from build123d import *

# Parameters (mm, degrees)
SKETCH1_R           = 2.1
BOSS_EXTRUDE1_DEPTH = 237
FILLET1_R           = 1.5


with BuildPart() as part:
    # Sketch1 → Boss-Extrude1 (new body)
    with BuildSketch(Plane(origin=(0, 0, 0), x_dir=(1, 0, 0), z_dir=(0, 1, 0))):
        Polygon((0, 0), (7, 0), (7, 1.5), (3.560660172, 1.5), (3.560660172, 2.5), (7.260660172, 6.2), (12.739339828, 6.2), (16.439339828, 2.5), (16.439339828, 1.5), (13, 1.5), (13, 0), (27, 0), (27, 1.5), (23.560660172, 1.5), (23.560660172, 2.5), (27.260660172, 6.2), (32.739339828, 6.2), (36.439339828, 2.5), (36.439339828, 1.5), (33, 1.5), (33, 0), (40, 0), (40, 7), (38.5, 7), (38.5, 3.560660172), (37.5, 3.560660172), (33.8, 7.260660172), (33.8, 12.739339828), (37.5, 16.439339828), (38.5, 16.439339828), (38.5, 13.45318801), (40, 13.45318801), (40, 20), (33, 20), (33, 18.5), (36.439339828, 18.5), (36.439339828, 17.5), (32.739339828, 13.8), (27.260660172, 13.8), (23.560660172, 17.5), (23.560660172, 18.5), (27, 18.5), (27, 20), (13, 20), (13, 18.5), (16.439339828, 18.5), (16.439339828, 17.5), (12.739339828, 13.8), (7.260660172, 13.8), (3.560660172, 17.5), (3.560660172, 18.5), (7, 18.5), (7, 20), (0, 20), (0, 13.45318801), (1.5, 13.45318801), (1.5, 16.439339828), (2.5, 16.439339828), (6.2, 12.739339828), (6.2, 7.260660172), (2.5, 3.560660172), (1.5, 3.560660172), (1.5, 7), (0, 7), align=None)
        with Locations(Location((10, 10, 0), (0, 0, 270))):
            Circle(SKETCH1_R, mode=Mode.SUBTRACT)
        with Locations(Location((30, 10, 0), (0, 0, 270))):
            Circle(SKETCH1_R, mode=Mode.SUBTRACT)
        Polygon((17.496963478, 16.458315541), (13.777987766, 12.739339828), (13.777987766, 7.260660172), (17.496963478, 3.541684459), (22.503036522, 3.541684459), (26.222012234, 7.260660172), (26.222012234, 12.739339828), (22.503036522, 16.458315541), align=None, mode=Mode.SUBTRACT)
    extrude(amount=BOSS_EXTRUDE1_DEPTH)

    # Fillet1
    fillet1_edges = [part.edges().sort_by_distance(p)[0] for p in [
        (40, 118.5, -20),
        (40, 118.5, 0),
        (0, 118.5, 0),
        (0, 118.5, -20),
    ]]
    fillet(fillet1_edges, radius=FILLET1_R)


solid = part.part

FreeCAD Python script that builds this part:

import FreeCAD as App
import Part
import Sketcher

V = App.Vector


def edges_at(feature, points):
    """Names of the edges that pass closest to the given points."""
    edges = feature.Shape.Edges
    near = lambda p: min(range(len(edges)), key=lambda i: edges[i].distToShape(Part.Vertex(*p))[0])
    return sorted({f"Edge{near(p) + 1}" for p in points})


def add_polygon(sketch, points):
    """Adds a closed chain of lines whose ends are joined by coincident constraints."""
    first, n = sketch.GeometryCount, len(points)
    for a, b in zip(points, points[1:] + points[:1]):
        sketch.addGeometry(Part.LineSegment(App.Vector(*a, 0), App.Vector(*b, 0)), False)
    for i in range(n):
        sketch.addConstraint(Sketcher.Constraint("Coincident", first + i, 2, first + (i + 1) % n, 1))

doc = App.newDocument("Part")
body = doc.addObject("PartDesign::Body", "Body")

# Sketch on XZ plane
sketch1 = doc.addObject("Sketcher::SketchObject", "Sketch")
body.addObject(sketch1)
sketch1.AttachmentSupport = (doc.XZ_Plane, [""])
sketch1.MapMode = "FlatFace"
add_polygon(sketch1, [(0, 0), (7, 0), (7, -1.5), (3.56066, -1.5), (3.56066, -2.5), (7.26066, -6.2), (12.73934, -6.2), (16.43934, -2.5), (16.43934, -1.5), (13, -1.5), (13, 0), (27, 0), (27, -1.5), (23.56066, -1.5), (23.56066, -2.5), (27.26066, -6.2), (32.73934, -6.2), (36.43934, -2.5), (36.43934, -1.5), (33, -1.5), (33, 0), (40, 0), (40, -7), (38.5, -7), (38.5, -3.56066), (37.5, -3.56066), (33.8, -7.26066), (33.8, -12.73934), (37.5, -16.43934), (38.5, -16.43934), (38.5, -13.453188), (40, -13.453188), (40, -20), (33, -20), (33, -18.5), (36.43934, -18.5), (36.43934, -17.5), (32.73934, -13.8), (27.26066, -13.8), (23.56066, -17.5), (23.56066, -18.5), (27, -18.5), (27, -20), (13, -20), (13, -18.5), (16.43934, -18.5), (16.43934, -17.5), (12.73934, -13.8), (7.26066, -13.8), (3.56066, -17.5), (3.56066, -18.5), (7, -18.5), (7, -20), (0, -20), (0, -13.453188), (1.5, -13.453188), (1.5, -16.43934), (2.5, -16.43934), (6.2, -12.73934), (6.2, -7.26066), (2.5, -3.56066), (1.5, -3.56066), (1.5, -7), (0, -7)])  # lines 0-63
sketch1.addGeometry(Part.Circle(V(10, -10, 0), V(0, 0, 1), 2.1), False)  # 64
add_polygon(sketch1, [(13.777988, -12.73934), (17.496963, -16.458316), (22.503037, -16.458316), (26.222012, -12.73934), (26.222012, -7.26066), (22.503037, -3.541684), (17.496963, -3.541684), (13.777988, -7.26066)])  # lines 65-72
sketch1.addGeometry(Part.Circle(V(30, -10, 0), V(0, 0, 1), 2.1), False)  # 73
sketch1.addConstraint([
    Sketcher.Constraint("Horizontal", 0),
    Sketcher.Constraint("Vertical", 1),
    Sketcher.Constraint("Horizontal", 2),
    Sketcher.Constraint("Vertical", 3),
    Sketcher.Constraint("Horizontal", 5),
    Sketcher.Constraint("Vertical", 7),
    Sketcher.Constraint("Horizontal", 8),
    Sketcher.Constraint("Vertical", 9),
    Sketcher.Constraint("Horizontal", 10),
    Sketcher.Constraint("Vertical", 11),
    Sketcher.Constraint("Horizontal", 12),
    Sketcher.Constraint("Vertical", 13),
    Sketcher.Constraint("Horizontal", 15),
    Sketcher.Constraint("Vertical", 17),
    Sketcher.Constraint("Horizontal", 18),
    Sketcher.Constraint("Vertical", 19),
    Sketcher.Constraint("Horizontal", 20),
    Sketcher.Constraint("Vertical", 21),
    Sketcher.Constraint("Horizontal", 22),
    Sketcher.Constraint("Vertical", 23),
    Sketcher.Constraint("Horizontal", 24),
    Sketcher.Constraint("Vertical", 26),
    Sketcher.Constraint("Horizontal", 28),
    Sketcher.Constraint("Vertical", 29),
    Sketcher.Constraint("Horizontal", 30),
    Sketcher.Constraint("Vertical", 31),
    Sketcher.Constraint("Horizontal", 32),
    Sketcher.Constraint("Vertical", 33),
    Sketcher.Constraint("Horizontal", 34),
    Sketcher.Constraint("Vertical", 35),
    Sketcher.Constraint("Horizontal", 37),
    Sketcher.Constraint("Vertical", 39),
    Sketcher.Constraint("Horizontal", 40),
    Sketcher.Constraint("Vertical", 41),
    Sketcher.Constraint("Horizontal", 42),
    Sketcher.Constraint("Vertical", 43),
    Sketcher.Constraint("Horizontal", 44),
    Sketcher.Constraint("Vertical", 45),
    Sketcher.Constraint("Horizontal", 47),
    Sketcher.Constraint("Vertical", 49),
    Sketcher.Constraint("Horizontal", 50),
    Sketcher.Constraint("Vertical", 51),
    Sketcher.Constraint("Horizontal", 52),
    Sketcher.Constraint("Vertical", 53),
    Sketcher.Constraint("Horizontal", 54),
    Sketcher.Constraint("Vertical", 55),
    Sketcher.Constraint("Horizontal", 56),
    Sketcher.Constraint("Vertical", 58),
    Sketcher.Constraint("Horizontal", 60),
    Sketcher.Constraint("Vertical", 61),
    Sketcher.Constraint("Horizontal", 62),
    Sketcher.Constraint("Vertical", 63),
    Sketcher.Constraint("Horizontal", 66),
    Sketcher.Constraint("Vertical", 68),
    Sketcher.Constraint("Horizontal", 70),
    Sketcher.Constraint("Vertical", 72),
    Sketcher.Constraint("Coincident", 63, 2, -1, 1),
    Sketcher.Constraint("Equal", 64, 73),
    Sketcher.Constraint("PointOnObject", 9, 2, -1),
    Sketcher.Constraint("PointOnObject", 19, 2, -1),
    Sketcher.Constraint("PointOnObject", 52, 2, -2),
    Sketcher.Constraint("Perpendicular", 4, 6),
    Sketcher.Constraint("Perpendicular", 6, 14),
    Sketcher.Constraint("Perpendicular", 14, 16),
    Sketcher.Constraint("Parallel", 16, 25),
    Sketcher.Constraint("Perpendicular", 25, 27),
    Sketcher.Constraint("Parallel", 27, 36),
    Sketcher.Constraint("Perpendicular", 36, 38),
    Sketcher.Constraint("Perpendicular", 38, 46),
    Sketcher.Constraint("Perpendicular", 46, 48),
    Sketcher.Constraint("Parallel", 48, 57),
    Sketcher.Constraint("Perpendicular", 57, 59),
    Sketcher.Constraint("Parallel", 59, 65),
    Sketcher.Constraint("Perpendicular", 65, 67),
    Sketcher.Constraint("Perpendicular", 67, 69),
    Sketcher.Constraint("Perpendicular", 69, 71),
    Sketcher.Constraint("Horizontal", 64, 3, 73, 3),
    Sketcher.Constraint("Horizontal", 3, 2, 6, 2),
    Sketcher.Constraint("Horizontal", 2, 2, 7, 2),
    Sketcher.Constraint("Horizontal", 8, 2, 11, 2),
    Sketcher.Constraint("Horizontal", 6, 2, 13, 2),
    Sketcher.Constraint("Horizontal", 5, 2, 14, 2),
    Sketcher.Constraint("Horizontal", 13, 2, 16, 2),
    Sketcher.Constraint("Horizontal", 12, 2, 17, 2),
    Sketcher.Constraint("Horizontal", 35, 2, 38, 2),
    Sketcher.Constraint("Horizontal", 34, 2, 39, 2),
    Sketcher.Constraint("Horizontal", 32, 2, 41, 2),
    Sketcher.Constraint("Horizontal", 40, 2, 43, 2),
    Sketcher.Constraint("Horizontal", 38, 2, 45, 2),
    Sketcher.Constraint("Horizontal", 37, 2, 46, 2),
    Sketcher.Constraint("Horizontal", 45, 2, 48, 2),
    Sketcher.Constraint("Horizontal", 44, 2, 49, 2),
    Sketcher.Constraint("Horizontal", 42, 2, 51, 2),
    Sketcher.Constraint("Horizontal", 30, 2, 53, 2),
    Sketcher.Constraint("Horizontal", 28, 2, 55, 2),
    Sketcher.Constraint("Horizontal", 26, 2, 57, 2),
    Sketcher.Constraint("Horizontal", 25, 2, 58, 2),
    Sketcher.Constraint("Horizontal", 24, 2, 59, 2),
    Sketcher.Constraint("Horizontal", 22, 2, 61, 2),
    Sketcher.Constraint("Horizontal", 57, 2, 67, 2),
    Sketcher.Constraint("Horizontal", 58, 2, 68, 2),
    Sketcher.Constraint("Horizontal", 68, 2, 71, 2),
    Sketcher.Constraint("Horizontal", 67, 2, 72, 2),
    Sketcher.Constraint("Vertical", 24, 2, 27, 2),
    Sketcher.Constraint("Vertical", 23, 2, 28, 2),
    Sketcher.Constraint("Vertical", 21, 2, 30, 2),
    Sketcher.Constraint("Vertical", 19, 2, 32, 2),
    Sketcher.Constraint("Vertical", 17, 2, 34, 2),
    Sketcher.Constraint("Vertical", 15, 2, 36, 2),
    Sketcher.Constraint("Vertical", 14, 2, 37, 2),
    Sketcher.Constraint("Vertical", 13, 2, 38, 2),
    Sketcher.Constraint("Vertical", 11, 2, 40, 2),
    Sketcher.Constraint("Vertical", 9, 2, 42, 2),
    Sketcher.Constraint("Vertical", 7, 2, 44, 2),
    Sketcher.Constraint("Vertical", 4, 2, 47, 2),
    Sketcher.Constraint("Vertical", 1, 2, 50, 2),
    Sketcher.Constraint("Vertical", 55, 2, 60, 2),
    Sketcher.Constraint("Vertical", 66, 2, 69, 2),
    Sketcher.Constraint("Equal", 2, 8),
    Sketcher.Constraint("Equal", 8, 12),
    Sketcher.Constraint("Equal", 5, 15),
    Sketcher.Constraint("Equal", 12, 18),
    Sketcher.Constraint("Equal", 0, 20),
    Sketcher.Constraint("Equal", 30, 54),
    Sketcher.Constraint("Equal", 28, 56),
    Sketcher.Constraint("Equal", 62, 1),
    Sketcher.Constraint("Equal", 60, 3),
    Sketcher.Constraint("Equal", 52, 21),
    Sketcher.Constraint("Equal", 50, 23),
    Sketcher.Constraint("Equal", 47, 26),
    Sketcher.Constraint("Equal", 19, 33),
    Sketcher.Constraint("Equal", 17, 35),
    Sketcher.Constraint("Equal", 16, 25),
    Sketcher.Constraint("Diameter", 64, 4.2),
    Sketcher.Constraint("DistanceX", 0, 1, 0, 2, 7.0),
    Sketcher.Constraint("DistanceX", 10, 1, 10, 2, 14.0),
    Sketcher.Constraint("DistanceX", 24, 2, 24, 1, 1.0),
    Sketcher.Constraint("DistanceX", 22, 2, 22, 1, 1.5),
    Sketcher.Constraint("DistanceX", -1, 1, 64, 3, 10.0),
    Sketcher.Constraint("DistanceY", 64, 3, -1, 1, 10.0),
    Sketcher.Constraint("DistanceX", -1, 1, 73, 3, 30.0),
    Sketcher.Constraint("DistanceX", -1, 1, 8, 2, 13.0),
    Sketcher.Constraint("DistanceY", 31, 2, -1, 1, 20.0),
    Sketcher.Constraint("DistanceY", 4, 2, -1, 1, 6.2),
    Sketcher.Constraint("DistanceX", 2, 2, 2, 1, 3.43934),
    Sketcher.Constraint("DistanceY", 29, 1, 29, 2, 2.986152),
    Sketcher.Constraint("DistanceX", 66, 1, 66, 2, 5.006073),
    Sketcher.Constraint("Distance", 65, 5.259426),
    Sketcher.Constraint("DistanceX", -1, 1, 65, 2, 17.496963),
])
pad1 = doc.addObject("PartDesign::Pad", "Pad")
body.addObject(pad1)
pad1.Profile = sketch1
pad1.Length = 237
pad1.Reversed = True
doc.recompute()

fillet = doc.addObject("PartDesign::Fillet", "Fillet")
body.addObject(fillet)
fillet.Base = (pad1, edges_at(pad1, [
    (40, 118.5, -20),
    (40, 118.5, 0),
    (0, 118.5, 0),
    (0, 118.5, -20),
]))
fillet.Radius = 1.5

doc.recompute()
